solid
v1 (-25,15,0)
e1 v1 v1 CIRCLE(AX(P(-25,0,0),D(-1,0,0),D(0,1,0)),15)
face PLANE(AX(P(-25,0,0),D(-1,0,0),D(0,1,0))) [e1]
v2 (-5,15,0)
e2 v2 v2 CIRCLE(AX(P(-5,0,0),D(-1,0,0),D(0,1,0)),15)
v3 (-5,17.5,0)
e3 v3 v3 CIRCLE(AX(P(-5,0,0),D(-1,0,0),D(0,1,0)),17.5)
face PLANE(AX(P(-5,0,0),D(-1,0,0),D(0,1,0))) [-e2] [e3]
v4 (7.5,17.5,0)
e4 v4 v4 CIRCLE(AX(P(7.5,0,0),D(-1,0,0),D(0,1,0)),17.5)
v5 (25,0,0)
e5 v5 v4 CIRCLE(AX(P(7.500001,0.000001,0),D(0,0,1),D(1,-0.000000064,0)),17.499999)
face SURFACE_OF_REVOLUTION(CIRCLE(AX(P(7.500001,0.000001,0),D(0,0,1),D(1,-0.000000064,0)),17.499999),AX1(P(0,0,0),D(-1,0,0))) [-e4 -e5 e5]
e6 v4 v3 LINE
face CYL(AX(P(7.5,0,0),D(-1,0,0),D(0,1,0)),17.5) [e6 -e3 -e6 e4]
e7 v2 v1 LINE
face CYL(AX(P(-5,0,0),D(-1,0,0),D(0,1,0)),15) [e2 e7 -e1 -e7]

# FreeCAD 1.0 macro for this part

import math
import FreeCAD as App
import Part
import Sketcher

V = App.Vector

doc = App.newDocument("Part")
body = doc.addObject("PartDesign::Body", "Body")

# Sketch on XY plane
sketch1 = body.newObject("Sketcher::SketchObject", "Sketch")
sketch1.AttachmentSupport = (doc.getObject("XY_Plane"), [""])
sketch1.MapMode = "FlatFace"
sketch1.addGeometry(Part.LineSegment(V(-25, 0, 0), V(25, 0, 0)), False)
sketch1.addGeometry(Part.ArcOfCircle(Part.Circle(V(7.5, 0, 0), V(0, 0, 1), 17.5), math.radians(0), math.radians(90)), False)
sketch1.addGeometry(Part.LineSegment(V(7.5, 17.5, 0), V(-5, 17.5, 0)), False)
sketch1.addGeometry(Part.LineSegment(V(-5, 17.5, 0), V(-5, 15, 0)), False)
sketch1.addGeometry(Part.LineSegment(V(-5, 15, 0), V(-25, 15, 0)), False)
sketch1.addGeometry(Part.LineSegment(V(-25, 15, 0), V(-25, 0, 0)), False)
sketch1.addConstraint(Sketcher.Constraint("Coincident", 0, 2, 1, 1))
sketch1.addConstraint(Sketcher.Constraint("Tangent", 1, 2, 2, 1))
sketch1.addConstraint(Sketcher.Constraint("Coincident", 2, 2, 3, 1))
sketch1.addConstraint(Sketcher.Constraint("Coincident", 3, 2, 4, 1))
sketch1.addConstraint(Sketcher.Constraint("Coincident", 4, 2, 5, 1))
sketch1.addConstraint(Sketcher.Constraint("Coincident", 5, 2, 0, 1))
sketch1.addConstraint(Sketcher.Constraint("Horizontal", 0))
sketch1.addConstraint(Sketcher.Constraint("Horizontal", 2))
sketch1.addConstraint(Sketcher.Constraint("Vertical", 3))
sketch1.addConstraint(Sketcher.Constraint("Horizontal", 4))
sketch1.addConstraint(Sketcher.Constraint("Vertical", 5))
sketch1.addConstraint(Sketcher.Constraint("Symmetric", 0, 2, 5, 2, -1, 1))
sketch1.addConstraint(Sketcher.Constraint("PointOnObject", 1, 3, -1))
sketch1.addConstraint(Sketcher.Constraint("Radius", 1, 17.499999))
sketch1.addConstraint(Sketcher.Constraint("DistanceX", 0, 1, 0, 2, 50.0))
sketch1.addConstraint(Sketcher.Constraint("DistanceX", 4, 2, 4, 1, 20.0))
sketch1.addConstraint(Sketcher.Constraint("DistanceY", 5, 2, 5, 1, 15.0))
revolution = body.newObject("PartDesign::Revolution", "Revolution")
revolution.Profile = sketch1
revolution.ReferenceAxis = (sketch1, ["H_Axis"])
revolution.Angle = 360

doc.recompute()
